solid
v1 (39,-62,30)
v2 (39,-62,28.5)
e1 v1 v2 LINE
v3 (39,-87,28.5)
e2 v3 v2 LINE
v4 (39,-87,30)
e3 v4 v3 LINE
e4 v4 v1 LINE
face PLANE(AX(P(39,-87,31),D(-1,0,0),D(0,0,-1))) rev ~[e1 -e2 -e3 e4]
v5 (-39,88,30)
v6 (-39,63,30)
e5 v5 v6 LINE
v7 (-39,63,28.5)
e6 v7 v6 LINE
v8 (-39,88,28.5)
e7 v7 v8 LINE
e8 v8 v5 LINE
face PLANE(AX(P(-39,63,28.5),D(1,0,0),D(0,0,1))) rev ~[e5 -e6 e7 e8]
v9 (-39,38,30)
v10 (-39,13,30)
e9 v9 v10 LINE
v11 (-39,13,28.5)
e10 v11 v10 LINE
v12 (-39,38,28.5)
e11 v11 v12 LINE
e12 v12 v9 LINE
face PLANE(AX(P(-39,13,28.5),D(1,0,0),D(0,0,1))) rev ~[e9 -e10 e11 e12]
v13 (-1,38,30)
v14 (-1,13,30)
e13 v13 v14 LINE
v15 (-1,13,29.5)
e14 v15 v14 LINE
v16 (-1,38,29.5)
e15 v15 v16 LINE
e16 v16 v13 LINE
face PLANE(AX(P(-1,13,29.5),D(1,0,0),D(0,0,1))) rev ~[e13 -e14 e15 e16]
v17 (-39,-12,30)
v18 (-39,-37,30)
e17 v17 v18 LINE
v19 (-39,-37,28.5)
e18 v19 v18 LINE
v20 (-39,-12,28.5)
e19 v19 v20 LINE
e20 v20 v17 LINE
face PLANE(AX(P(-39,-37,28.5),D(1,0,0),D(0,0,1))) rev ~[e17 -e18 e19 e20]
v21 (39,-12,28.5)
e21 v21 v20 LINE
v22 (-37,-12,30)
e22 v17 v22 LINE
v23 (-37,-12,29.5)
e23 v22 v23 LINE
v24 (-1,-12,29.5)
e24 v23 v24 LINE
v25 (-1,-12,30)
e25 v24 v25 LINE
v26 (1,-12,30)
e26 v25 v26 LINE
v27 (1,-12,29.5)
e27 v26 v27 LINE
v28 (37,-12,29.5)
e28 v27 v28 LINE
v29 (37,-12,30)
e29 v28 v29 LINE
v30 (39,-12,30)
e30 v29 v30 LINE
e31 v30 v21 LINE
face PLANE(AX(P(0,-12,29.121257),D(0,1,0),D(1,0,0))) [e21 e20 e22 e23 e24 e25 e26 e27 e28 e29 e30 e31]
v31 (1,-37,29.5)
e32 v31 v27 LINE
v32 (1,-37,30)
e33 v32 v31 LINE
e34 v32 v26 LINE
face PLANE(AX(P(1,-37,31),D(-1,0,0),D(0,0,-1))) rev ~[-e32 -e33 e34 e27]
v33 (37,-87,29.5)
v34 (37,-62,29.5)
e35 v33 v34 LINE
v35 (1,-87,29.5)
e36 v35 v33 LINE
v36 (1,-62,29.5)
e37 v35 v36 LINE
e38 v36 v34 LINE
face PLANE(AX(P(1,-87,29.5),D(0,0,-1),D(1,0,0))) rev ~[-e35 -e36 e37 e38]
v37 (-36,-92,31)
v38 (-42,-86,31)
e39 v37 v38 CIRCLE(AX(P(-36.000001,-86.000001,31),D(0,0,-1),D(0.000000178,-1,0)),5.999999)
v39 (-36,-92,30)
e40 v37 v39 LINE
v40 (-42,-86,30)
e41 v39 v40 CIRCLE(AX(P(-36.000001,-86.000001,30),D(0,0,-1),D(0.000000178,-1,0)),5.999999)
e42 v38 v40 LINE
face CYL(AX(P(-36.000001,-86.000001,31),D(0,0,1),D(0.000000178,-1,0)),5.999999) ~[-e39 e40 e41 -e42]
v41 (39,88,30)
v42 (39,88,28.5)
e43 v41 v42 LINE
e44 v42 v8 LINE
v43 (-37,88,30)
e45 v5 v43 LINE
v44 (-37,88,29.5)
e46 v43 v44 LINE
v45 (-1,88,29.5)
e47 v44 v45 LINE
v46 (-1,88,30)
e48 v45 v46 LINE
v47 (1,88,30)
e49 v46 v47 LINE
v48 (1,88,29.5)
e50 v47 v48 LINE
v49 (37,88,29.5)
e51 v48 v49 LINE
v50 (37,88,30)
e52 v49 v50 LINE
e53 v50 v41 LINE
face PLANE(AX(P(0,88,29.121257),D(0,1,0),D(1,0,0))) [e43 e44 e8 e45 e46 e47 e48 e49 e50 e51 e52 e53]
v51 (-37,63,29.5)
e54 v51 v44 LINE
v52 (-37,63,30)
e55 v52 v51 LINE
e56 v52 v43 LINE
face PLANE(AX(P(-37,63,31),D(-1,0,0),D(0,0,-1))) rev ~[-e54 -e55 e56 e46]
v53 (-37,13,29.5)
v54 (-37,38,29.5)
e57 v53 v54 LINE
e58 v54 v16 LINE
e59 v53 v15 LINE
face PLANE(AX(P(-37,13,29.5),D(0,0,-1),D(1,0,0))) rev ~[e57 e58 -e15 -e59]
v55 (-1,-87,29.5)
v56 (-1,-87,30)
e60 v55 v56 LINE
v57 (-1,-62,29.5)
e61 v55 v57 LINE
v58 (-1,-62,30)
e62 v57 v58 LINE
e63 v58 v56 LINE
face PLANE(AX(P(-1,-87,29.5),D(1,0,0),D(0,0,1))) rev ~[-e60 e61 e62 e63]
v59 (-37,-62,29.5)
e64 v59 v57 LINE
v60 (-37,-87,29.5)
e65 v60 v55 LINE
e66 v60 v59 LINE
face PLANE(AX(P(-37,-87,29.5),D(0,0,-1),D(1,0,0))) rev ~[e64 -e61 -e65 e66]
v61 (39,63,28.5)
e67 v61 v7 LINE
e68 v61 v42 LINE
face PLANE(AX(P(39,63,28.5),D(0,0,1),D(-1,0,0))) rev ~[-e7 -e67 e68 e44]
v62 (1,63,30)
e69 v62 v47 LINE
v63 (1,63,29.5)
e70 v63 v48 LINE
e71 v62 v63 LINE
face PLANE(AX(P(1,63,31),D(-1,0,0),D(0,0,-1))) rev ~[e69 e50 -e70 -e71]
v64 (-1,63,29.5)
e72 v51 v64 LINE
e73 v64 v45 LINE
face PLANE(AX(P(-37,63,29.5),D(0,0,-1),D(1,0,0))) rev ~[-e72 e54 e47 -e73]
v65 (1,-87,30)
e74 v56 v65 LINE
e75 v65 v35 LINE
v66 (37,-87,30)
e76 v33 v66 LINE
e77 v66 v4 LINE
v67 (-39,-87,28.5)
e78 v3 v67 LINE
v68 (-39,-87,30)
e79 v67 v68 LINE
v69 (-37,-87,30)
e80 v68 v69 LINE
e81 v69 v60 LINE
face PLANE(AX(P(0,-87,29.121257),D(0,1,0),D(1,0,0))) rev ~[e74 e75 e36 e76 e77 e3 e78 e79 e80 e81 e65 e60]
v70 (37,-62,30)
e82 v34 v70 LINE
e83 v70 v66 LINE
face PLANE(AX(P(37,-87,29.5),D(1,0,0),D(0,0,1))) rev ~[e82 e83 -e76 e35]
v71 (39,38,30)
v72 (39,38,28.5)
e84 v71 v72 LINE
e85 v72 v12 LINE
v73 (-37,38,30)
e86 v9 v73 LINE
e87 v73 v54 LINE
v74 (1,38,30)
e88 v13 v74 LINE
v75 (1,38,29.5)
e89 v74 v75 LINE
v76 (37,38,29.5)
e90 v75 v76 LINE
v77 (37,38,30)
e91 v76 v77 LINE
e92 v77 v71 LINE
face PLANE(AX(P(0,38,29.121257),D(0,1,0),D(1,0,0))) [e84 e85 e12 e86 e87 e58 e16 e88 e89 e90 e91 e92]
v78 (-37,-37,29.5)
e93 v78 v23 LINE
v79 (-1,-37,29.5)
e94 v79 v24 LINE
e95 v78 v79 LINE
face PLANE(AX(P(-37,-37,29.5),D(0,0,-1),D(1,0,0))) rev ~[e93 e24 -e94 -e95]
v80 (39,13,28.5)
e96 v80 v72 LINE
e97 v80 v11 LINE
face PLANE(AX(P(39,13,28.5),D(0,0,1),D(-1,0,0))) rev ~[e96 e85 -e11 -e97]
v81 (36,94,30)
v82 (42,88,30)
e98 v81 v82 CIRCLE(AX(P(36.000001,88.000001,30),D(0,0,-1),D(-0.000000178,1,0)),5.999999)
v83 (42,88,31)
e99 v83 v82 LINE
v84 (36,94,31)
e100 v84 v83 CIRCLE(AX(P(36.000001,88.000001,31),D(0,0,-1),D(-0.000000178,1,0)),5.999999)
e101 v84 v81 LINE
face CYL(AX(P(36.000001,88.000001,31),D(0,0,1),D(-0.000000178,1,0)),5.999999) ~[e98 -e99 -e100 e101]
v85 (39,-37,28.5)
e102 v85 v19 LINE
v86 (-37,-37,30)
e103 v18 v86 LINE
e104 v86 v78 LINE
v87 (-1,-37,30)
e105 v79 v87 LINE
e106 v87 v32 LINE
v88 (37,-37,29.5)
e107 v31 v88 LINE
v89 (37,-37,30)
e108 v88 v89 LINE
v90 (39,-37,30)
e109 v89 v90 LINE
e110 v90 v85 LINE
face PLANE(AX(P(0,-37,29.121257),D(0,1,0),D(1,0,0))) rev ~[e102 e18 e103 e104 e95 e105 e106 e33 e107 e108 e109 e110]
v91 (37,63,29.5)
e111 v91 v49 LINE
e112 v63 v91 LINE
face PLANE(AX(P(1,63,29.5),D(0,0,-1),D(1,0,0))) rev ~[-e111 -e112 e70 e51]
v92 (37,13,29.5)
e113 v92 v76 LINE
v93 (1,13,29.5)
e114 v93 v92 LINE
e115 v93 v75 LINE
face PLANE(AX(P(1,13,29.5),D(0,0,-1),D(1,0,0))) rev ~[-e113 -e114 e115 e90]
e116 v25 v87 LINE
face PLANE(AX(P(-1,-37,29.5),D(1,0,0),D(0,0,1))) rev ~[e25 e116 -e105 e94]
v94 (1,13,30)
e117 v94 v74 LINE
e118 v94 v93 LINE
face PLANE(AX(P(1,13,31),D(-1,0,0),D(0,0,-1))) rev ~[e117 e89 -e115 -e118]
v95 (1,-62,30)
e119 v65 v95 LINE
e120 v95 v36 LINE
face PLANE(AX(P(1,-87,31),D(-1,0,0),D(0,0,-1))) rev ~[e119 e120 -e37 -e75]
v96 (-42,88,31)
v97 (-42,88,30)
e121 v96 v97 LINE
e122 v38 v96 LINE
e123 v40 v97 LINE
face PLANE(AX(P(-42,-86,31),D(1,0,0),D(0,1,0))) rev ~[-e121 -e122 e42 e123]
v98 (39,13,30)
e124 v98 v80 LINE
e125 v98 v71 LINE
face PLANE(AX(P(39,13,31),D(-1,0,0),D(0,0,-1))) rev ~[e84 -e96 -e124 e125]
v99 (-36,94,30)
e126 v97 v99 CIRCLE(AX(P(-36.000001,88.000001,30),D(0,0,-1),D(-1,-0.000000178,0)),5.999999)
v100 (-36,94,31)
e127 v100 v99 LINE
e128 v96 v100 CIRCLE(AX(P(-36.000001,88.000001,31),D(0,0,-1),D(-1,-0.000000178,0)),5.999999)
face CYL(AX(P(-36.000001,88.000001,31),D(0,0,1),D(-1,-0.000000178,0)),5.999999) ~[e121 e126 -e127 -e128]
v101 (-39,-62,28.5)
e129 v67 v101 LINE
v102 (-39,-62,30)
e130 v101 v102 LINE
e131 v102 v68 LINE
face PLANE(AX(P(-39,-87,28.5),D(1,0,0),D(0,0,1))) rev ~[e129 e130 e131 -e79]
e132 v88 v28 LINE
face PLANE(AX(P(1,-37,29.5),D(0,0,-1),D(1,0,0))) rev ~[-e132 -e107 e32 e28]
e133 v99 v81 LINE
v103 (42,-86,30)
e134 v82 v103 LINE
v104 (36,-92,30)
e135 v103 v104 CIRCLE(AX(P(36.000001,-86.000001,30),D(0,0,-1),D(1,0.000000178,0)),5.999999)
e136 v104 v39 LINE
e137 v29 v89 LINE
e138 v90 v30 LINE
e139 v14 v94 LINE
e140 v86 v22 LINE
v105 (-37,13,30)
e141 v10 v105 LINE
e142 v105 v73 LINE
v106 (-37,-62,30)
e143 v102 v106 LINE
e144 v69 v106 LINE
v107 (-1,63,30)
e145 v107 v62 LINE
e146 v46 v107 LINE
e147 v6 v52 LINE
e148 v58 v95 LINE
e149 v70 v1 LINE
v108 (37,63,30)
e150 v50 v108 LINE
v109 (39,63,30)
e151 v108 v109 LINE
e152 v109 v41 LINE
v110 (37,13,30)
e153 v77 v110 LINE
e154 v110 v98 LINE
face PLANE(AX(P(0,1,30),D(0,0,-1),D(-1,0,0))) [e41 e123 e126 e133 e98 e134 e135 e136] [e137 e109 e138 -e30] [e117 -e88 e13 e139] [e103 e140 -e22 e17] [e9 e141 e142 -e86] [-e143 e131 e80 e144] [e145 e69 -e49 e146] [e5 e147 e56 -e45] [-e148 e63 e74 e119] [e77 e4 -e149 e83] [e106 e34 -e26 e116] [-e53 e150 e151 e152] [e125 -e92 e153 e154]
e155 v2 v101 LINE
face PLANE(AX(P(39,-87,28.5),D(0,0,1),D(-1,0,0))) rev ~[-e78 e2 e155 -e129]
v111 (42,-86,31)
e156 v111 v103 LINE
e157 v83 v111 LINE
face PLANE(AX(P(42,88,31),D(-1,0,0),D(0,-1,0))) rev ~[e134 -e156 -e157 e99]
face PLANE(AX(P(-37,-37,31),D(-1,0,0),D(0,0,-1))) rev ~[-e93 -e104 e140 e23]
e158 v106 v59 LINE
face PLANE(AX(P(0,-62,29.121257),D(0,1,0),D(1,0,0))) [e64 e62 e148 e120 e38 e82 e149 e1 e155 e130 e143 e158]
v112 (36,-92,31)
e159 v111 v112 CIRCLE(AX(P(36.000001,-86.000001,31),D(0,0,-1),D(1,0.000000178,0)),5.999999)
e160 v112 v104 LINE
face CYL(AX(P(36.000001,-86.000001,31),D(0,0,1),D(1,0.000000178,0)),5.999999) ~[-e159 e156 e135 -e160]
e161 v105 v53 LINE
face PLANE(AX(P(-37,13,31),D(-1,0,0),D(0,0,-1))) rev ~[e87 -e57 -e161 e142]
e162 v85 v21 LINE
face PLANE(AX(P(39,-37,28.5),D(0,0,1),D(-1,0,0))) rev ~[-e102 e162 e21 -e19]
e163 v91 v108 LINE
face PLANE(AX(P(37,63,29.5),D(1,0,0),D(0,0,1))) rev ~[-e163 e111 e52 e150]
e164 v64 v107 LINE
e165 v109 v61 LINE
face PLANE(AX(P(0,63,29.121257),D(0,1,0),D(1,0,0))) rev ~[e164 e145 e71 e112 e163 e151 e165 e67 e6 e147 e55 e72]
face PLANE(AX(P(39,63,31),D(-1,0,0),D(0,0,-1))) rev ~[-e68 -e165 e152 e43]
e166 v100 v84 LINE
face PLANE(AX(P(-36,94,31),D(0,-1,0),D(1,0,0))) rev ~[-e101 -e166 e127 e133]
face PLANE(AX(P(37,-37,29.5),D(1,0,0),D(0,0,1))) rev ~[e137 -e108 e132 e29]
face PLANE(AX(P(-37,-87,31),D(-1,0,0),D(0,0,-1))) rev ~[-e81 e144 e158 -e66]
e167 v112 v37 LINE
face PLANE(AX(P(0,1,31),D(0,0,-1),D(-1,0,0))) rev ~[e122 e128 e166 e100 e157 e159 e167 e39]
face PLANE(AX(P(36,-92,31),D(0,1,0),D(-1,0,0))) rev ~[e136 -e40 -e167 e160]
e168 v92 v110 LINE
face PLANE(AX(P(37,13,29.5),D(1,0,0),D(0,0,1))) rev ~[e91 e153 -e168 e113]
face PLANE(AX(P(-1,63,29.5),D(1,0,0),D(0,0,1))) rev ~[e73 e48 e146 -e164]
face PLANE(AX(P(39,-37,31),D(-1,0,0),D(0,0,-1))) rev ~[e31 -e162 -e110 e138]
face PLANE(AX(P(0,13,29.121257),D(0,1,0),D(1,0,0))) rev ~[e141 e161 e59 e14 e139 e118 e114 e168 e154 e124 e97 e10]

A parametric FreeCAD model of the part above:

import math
import FreeCAD as App
import Part
import Sketcher
from FreeCAD import Vector

doc = App.newDocument("Part")
body = doc.addObject("PartDesign::Body", "Body")

# Sketch on XY plane
sketch1 = body.newObject("Sketcher::SketchObject", "Sketch")
sketch1.AttachmentSupport = (doc.getObject("XY_Plane"), [""])
sketch1.MapMode = "FlatFace"
sketch1.addGeometry([
    Part.LineSegment(Vector(-42, 147, 0), Vector(-42, -27, 0)),  # 0
    Part.ArcOfCircle(Part.Circle(Vector(-36, -27, 0), Vector(0, 0, 1), 6), math.radians(180), math.radians(270)),  # 1
    Part.LineSegment(Vector(-36, -33, 0), Vector(36, -33, 0)),  # 2
    Part.ArcOfCircle(Part.Circle(Vector(36, -27, 0), Vector(0, 0, 1), 6), math.radians(-90), math.radians(0)),  # 3
    Part.LineSegment(Vector(42, -27, 0), Vector(42, 147, 0)),  # 4
    Part.ArcOfCircle(Part.Circle(Vector(36, 147, 0), Vector(0, 0, 1), 6), math.radians(0), math.radians(90)),  # 5
    Part.LineSegment(Vector(36, 153, 0), Vector(-36, 153, 0)),  # 6
    Part.ArcOfCircle(Part.Circle(Vector(-36, 147, 0), Vector(0, 0, 1), 6), math.radians(90), math.radians(180)),  # 7
], False)
sketch1.addConstraint([
    Sketcher.Constraint("Tangent", 0, 2, 1, 1),
    Sketcher.Constraint("Tangent", 1, 2, 2, 1),
    Sketcher.Constraint("Tangent", 2, 2, 3, 1),
    Sketcher.Constraint("Tangent", 3, 2, 4, 1),
    Sketcher.Constraint("Tangent", 4, 2, 5, 1),
    Sketcher.Constraint("Tangent", 5, 2, 6, 1),
    Sketcher.Constraint("Tangent", 6, 2, 7, 1),
    Sketcher.Constraint("Tangent", 7, 2, 0, 1),
    Sketcher.Constraint("Vertical", 0),
    Sketcher.Constraint("Horizontal", 2),
    Sketcher.Constraint("Vertical", 4),
    Sketcher.Constraint("Horizontal", 6),
    Sketcher.Constraint("Equal", 1, 3),
    Sketcher.Constraint("Equal", 3, 5),
    Sketcher.Constraint("Equal", 5, 7),
    Sketcher.Constraint("Radius", 1, 5.999999),
    Sketcher.Constraint("DistanceX", 2, 1, 2, 2, 72.0),
    Sketcher.Constraint("DistanceY", 0, 2, 0, 1, 174.0),
    Sketcher.Constraint("DistanceX", 1, 3, -1, 1, 36.000001),
    Sketcher.Constraint("DistanceY", 1, 3, -1, 1, 27.000001),
])
pad1 = body.newObject("PartDesign::Pad", "Pad")
pad1.Profile = sketch1
pad1.Length = 1

# Sketch on XZ plane
sketch2 = body.newObject("Sketcher::SketchObject", "Sketch001")
sketch2.AttachmentSupport = (doc.getObject("XZ_Plane"), [""])
sketch2.MapMode = "FlatFace"
sketch2.AttachmentOffset = App.Placement(Vector(0, 0, 28), App.Rotation())
sketch2.addGeometry([
    Part.LineSegment(Vector(39, 2.5, 0), Vector(-39, 2.5, 0)),  # 0
    Part.LineSegment(Vector(-39, 2.5, 0), Vector(-39, 0, 0)),  # 1
    Part.LineSegment(Vector(-39, 0, 0), Vector(-37, 0, 0)),  # 2
    Part.LineSegment(Vector(-37, 0, 0), Vector(-37, 1.5, 0)),  # 3
    Part.LineSegment(Vector(-37, 1.5, 0), Vector(-1, 1.5, 0)),  # 4
    Part.LineSegment(Vector(-1, 1.5, 0), Vector(-1, 0, 0)),  # 5
    Part.LineSegment(Vector(-1, 0, 0), Vector(1, 0, 0)),  # 6
    Part.LineSegment(Vector(1, 0, 0), Vector(1, 1.5, 0)),  # 7
    Part.LineSegment(Vector(1, 1.5, 0), Vector(37, 1.5, 0)),  # 8
    Part.LineSegment(Vector(37, 1.5, 0), Vector(37, 0, 0)),  # 9
    Part.LineSegment(Vector(37, 0, 0), Vector(39, 0, 0)),  # 10
    Part.LineSegment(Vector(39, 0, 0), Vector(39, 2.5, 0)),  # 11
], False)
sketch2.addConstraint([
    Sketcher.Constraint("Coincident", 0, 2, 1, 1),
    Sketcher.Constraint("Coincident", 1, 2, 2, 1),
    Sketcher.Constraint("Coincident", 2, 2, 3, 1),
    Sketcher.Constraint("Coincident", 3, 2, 4, 1),
    Sketcher.Constraint("Coincident", 4, 2, 5, 1),
    Sketcher.Constraint("Coincident", 5, 2, 6, 1),
    Sketcher.Constraint("Coincident", 6, 2, 7, 1),
    Sketcher.Constraint("Coincident", 7, 2, 8, 1),
    Sketcher.Constraint("Coincident", 8, 2, 9, 1),
    Sketcher.Constraint("Coincident", 9, 2, 10, 1),
    Sketcher.Constraint("Coincident", 10, 2, 11, 1),
    Sketcher.Constraint("Coincident", 11, 2, 0, 1),
    Sketcher.Constraint("Horizontal", 0),
    Sketcher.Constraint("Vertical", 1),
    Sketcher.Constraint("Horizontal", 2),
    Sketcher.Constraint("Vertical", 3),
    Sketcher.Constraint("Horizontal", 4),
    Sketcher.Constraint("Vertical", 5),
    Sketcher.Constraint("Horizontal", 6),
    Sketcher.Constraint("Vertical", 7),
    Sketcher.Constraint("Horizontal", 8),
    Sketcher.Constraint("Vertical", 9),
    Sketcher.Constraint("Horizontal", 10),
    Sketcher.Constraint("Vertical", 11),
    Sketcher.Constraint("Symmetric", 5, 2, 6, 2, -1, 1),
    Sketcher.Constraint("Symmetric", 2, 2, 9, 2, -1, 1),
    Sketcher.Constraint("Symmetric", 1, 2, 10, 2, -2),
    Sketcher.Constraint("Horizontal", 4, 2, 7, 2),
    Sketcher.Constraint("Equal", 2, 6),
    Sketcher.Constraint("DistanceX", 0, 2, 0, 1, 78.0),
    Sketcher.Constraint("DistanceX", 2, 1, 2, 2, 2.0),
    Sketcher.Constraint("DistanceY", 1, 2, 1, 1, 2.5),
    Sketcher.Constraint("DistanceY", 3, 1, 3, 2, 1.5),
])
pad2 = body.newObject("PartDesign::Pad", "Pad001")
pad2.Profile = sketch2
pad2.Length = 25
pad2.Reversed = True
doc.recompute()

linearpattern = body.newObject("PartDesign::LinearPattern", "LinearPattern")
linearpattern.Originals = [pad2]
linearpattern.Direction = (doc.getObject("Y_Axis"), [""])
linearpattern.Mode = "offset"
linearpattern.Offset = 50
linearpattern.Occurrences = 4
body.Tip = linearpattern
body2 = doc.addObject("PartDesign::Body", "Body001")
doc.recompute()

body.Placement = App.Placement(Vector(0, -59, 31), App.Rotation(Vector(0, 1, 0), 180))
boolean = body2.newObject("PartDesign::Boolean", "Boolean")
boolean.Type = "Fuse"
boolean.addObjects([body])

doc.recompute()
